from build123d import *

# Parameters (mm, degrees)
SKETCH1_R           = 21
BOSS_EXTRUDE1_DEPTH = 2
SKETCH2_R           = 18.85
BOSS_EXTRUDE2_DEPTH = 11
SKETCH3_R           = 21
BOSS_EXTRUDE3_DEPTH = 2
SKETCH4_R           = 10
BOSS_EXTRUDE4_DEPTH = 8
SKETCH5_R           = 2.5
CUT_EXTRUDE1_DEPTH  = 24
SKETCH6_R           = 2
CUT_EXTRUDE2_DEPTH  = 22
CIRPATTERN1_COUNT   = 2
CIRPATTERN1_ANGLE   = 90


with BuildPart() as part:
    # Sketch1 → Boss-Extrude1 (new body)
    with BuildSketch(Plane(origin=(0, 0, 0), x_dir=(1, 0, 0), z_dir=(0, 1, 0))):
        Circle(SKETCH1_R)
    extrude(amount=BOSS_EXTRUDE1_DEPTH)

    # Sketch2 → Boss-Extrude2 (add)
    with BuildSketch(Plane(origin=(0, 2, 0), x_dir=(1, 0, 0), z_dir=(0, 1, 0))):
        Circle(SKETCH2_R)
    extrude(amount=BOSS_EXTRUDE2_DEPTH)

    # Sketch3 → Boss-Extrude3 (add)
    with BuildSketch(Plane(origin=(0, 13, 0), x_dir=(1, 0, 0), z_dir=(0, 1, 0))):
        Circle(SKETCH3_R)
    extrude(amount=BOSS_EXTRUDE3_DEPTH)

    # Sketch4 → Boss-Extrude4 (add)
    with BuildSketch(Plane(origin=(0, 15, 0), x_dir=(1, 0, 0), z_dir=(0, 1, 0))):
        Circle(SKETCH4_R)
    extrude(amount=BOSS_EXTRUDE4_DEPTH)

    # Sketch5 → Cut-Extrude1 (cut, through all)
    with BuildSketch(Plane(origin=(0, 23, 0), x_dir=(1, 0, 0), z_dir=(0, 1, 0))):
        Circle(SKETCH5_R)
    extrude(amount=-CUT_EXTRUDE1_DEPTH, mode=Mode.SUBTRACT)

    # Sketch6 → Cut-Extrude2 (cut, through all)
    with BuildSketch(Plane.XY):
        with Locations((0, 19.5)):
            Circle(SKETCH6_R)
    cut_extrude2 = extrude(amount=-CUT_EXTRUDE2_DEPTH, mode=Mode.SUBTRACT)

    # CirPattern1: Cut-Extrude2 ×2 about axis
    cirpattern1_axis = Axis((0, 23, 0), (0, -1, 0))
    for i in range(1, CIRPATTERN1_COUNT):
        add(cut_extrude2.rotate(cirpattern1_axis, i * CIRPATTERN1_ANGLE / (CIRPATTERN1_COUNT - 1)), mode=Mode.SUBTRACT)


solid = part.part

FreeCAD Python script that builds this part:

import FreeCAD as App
import Part
import Sketcher
from FreeCAD import Vector

doc = App.newDocument("Part")
params = doc.addObject("Spreadsheet::Sheet", "Params")
for row, (alias, value) in enumerate([
    ("sketch1_diameter", "42 mm"),
    ("pad1_length", "2 mm"),
    ("sketch2_diameter", "37.7 mm"),
    ("pad2_length", "11 mm"),
    ("sketch3_diameter", "42 mm"),
    ("pad3_length", "2 mm"),
    ("sketch4_diameter", "20 mm"),
    ("pad4_length", "8 mm"),
    ("sketch5_diameter", "5 mm"),
    ("sketch6_diameter", "4 mm"),
], start=1):
    params.set(f"A{row}", alias)
    params.set(f"B{row}", "=" + value)
    params.setAlias(f"B{row}", alias)

body = doc.addObject("PartDesign::Body", "Body")

# Sketch on XZ plane
sketch1 = doc.addObject("Sketcher::SketchObject", "Sketch")
body.addObject(sketch1)
sketch1.AttachmentSupport = (doc.XZ_Plane, [""])
sketch1.MapMode = "FlatFace"
sketch1.addGeometry(Part.Circle(Vector(0, 0, 0), Vector(0, 0, 1), 21), False)
sketch1.addConstraint([
    Sketcher.Constraint("Coincident", 0, 3, -1, 1),
    Sketcher.Constraint("Diameter", 0, 42.0),
])
sketch1.setExpression("Constraints[1]", "Params.sketch1_diameter")
pad1 = doc.addObject("PartDesign::Pad", "Pad")
body.addObject(pad1)
pad1.Profile = sketch1
pad1.setExpression("Length", "Params.pad1_length")
pad1.Reversed = True

# Sketch on XZ plane
sketch2 = doc.addObject("Sketcher::SketchObject", "Sketch001")
body.addObject(sketch2)
sketch2.AttachmentSupport = (doc.XZ_Plane, [""])
sketch2.MapMode = "FlatFace"
sketch2.AttachmentOffset = App.Placement(Vector(0, 0, -2), App.Rotation())
sketch2.addGeometry(Part.Circle(Vector(0, 0, 0), Vector(0, 0, 1), 19), False)
sketch2.addConstraint([
    Sketcher.Constraint("Coincident", 0, 3, -1, 1),
    Sketcher.Constraint("Diameter", 0, 37.7),
])
sketch2.setExpression("Constraints[1]", "Params.sketch2_diameter")
pad2 = doc.addObject("PartDesign::Pad", "Pad001")
body.addObject(pad2)
pad2.Profile = sketch2
pad2.setExpression("Length", "Params.pad2_length")
pad2.Reversed = True

# Sketch on XZ plane
sketch3 = doc.addObject("Sketcher::SketchObject", "Sketch002")
body.addObject(sketch3)
sketch3.AttachmentSupport = (doc.XZ_Plane, [""])
sketch3.MapMode = "FlatFace"
sketch3.AttachmentOffset = App.Placement(Vector(0, 0, -13), App.Rotation())
sketch3.addGeometry(Part.Circle(Vector(0, 0, 0), Vector(0, 0, 1), 21), False)
sketch3.addConstraint([
    Sketcher.Constraint("Coincident", 0, 3, -1, 1),
    Sketcher.Constraint("Diameter", 0, 42.0),
])
sketch3.setExpression("Constraints[1]", "Params.sketch3_diameter")
pad3 = doc.addObject("PartDesign::Pad", "Pad002")
body.addObject(pad3)
pad3.Profile = sketch3
pad3.setExpression("Length", "Params.pad3_length")
pad3.Reversed = True

# Sketch on XZ plane
sketch4 = doc.addObject("Sketcher::SketchObject", "Sketch003")
body.addObject(sketch4)
sketch4.AttachmentSupport = (doc.XZ_Plane, [""])
sketch4.MapMode = "FlatFace"
sketch4.AttachmentOffset = App.Placement(Vector(0, 0, -15), App.Rotation())
sketch4.addGeometry(Part.Circle(Vector(0, 0, 0), Vector(0, 0, 1), 10), False)
sketch4.addConstraint([
    Sketcher.Constraint("Coincident", 0, 3, -1, 1),
    Sketcher.Constraint("Diameter", 0, 20.0),
])
sketch4.setExpression("Constraints[1]", "Params.sketch4_diameter")
pad4 = doc.addObject("PartDesign::Pad", "Pad003")
body.addObject(pad4)
pad4.Profile = sketch4
pad4.setExpression("Length", "Params.pad4_length")
pad4.Reversed = True

# Sketch on XZ plane
sketch5 = doc.addObject("Sketcher::SketchObject", "Sketch004")
body.addObject(sketch5)
sketch5.AttachmentSupport = (doc.XZ_Plane, [""])
sketch5.MapMode = "FlatFace"
sketch5.AttachmentOffset = App.Placement(Vector(0, 0, -23), App.Rotation())
sketch5.addGeometry(Part.Circle(Vector(0, 0, 0), Vector(0, 0, 1), 2.5), False)
sketch5.addConstraint([
    Sketcher.Constraint("Coincident", 0, 3, -1, 1),
    Sketcher.Constraint("Diameter", 0, 5.0),
])
sketch5.setExpression("Constraints[1]", "Params.sketch5_diameter")
pocket1 = doc.addObject("PartDesign::Pocket", "Pocket")
body.addObject(pocket1)
pocket1.Profile = sketch5
pocket1.Type = "ThroughAll"
pocket1.Reversed = True

# Sketch on XY plane
sketch6 = doc.addObject("Sketcher::SketchObject", "Sketch005")
body.addObject(sketch6)
sketch6.AttachmentSupport = (doc.XY_Plane, [""])
sketch6.MapMode = "FlatFace"
sketch6.addGeometry(Part.Circle(Vector(0, 19.5, 0), Vector(0, 0, 1), 2), False)
sketch6.addConstraint([
    Sketcher.Constraint("PointOnObject", 0, 3, -2),
    Sketcher.Constraint("Diameter", 0, 4.0),
    Sketcher.Constraint("DistanceY", -1, 1, 0, 3, 19.5),
])
sketch6.setExpression("Constraints[1]", "Params.sketch6_diameter")
pocket2 = doc.addObject("PartDesign::Pocket", "Pocket001")
body.addObject(pocket2)
pocket2.Profile = sketch6
pocket2.Type = "ThroughAll"
doc.recompute()

polarpattern = doc.addObject("PartDesign::PolarPattern", "PolarPattern")
body.addObject(polarpattern)
polarpattern.Originals = [pocket2]
polarpattern.Axis = (doc.Y_Axis, [""])
polarpattern.Angle = 90
polarpattern.Occurrences = 2
polarpattern.Reversed = True
body.Tip = polarpattern

doc.recompute()
